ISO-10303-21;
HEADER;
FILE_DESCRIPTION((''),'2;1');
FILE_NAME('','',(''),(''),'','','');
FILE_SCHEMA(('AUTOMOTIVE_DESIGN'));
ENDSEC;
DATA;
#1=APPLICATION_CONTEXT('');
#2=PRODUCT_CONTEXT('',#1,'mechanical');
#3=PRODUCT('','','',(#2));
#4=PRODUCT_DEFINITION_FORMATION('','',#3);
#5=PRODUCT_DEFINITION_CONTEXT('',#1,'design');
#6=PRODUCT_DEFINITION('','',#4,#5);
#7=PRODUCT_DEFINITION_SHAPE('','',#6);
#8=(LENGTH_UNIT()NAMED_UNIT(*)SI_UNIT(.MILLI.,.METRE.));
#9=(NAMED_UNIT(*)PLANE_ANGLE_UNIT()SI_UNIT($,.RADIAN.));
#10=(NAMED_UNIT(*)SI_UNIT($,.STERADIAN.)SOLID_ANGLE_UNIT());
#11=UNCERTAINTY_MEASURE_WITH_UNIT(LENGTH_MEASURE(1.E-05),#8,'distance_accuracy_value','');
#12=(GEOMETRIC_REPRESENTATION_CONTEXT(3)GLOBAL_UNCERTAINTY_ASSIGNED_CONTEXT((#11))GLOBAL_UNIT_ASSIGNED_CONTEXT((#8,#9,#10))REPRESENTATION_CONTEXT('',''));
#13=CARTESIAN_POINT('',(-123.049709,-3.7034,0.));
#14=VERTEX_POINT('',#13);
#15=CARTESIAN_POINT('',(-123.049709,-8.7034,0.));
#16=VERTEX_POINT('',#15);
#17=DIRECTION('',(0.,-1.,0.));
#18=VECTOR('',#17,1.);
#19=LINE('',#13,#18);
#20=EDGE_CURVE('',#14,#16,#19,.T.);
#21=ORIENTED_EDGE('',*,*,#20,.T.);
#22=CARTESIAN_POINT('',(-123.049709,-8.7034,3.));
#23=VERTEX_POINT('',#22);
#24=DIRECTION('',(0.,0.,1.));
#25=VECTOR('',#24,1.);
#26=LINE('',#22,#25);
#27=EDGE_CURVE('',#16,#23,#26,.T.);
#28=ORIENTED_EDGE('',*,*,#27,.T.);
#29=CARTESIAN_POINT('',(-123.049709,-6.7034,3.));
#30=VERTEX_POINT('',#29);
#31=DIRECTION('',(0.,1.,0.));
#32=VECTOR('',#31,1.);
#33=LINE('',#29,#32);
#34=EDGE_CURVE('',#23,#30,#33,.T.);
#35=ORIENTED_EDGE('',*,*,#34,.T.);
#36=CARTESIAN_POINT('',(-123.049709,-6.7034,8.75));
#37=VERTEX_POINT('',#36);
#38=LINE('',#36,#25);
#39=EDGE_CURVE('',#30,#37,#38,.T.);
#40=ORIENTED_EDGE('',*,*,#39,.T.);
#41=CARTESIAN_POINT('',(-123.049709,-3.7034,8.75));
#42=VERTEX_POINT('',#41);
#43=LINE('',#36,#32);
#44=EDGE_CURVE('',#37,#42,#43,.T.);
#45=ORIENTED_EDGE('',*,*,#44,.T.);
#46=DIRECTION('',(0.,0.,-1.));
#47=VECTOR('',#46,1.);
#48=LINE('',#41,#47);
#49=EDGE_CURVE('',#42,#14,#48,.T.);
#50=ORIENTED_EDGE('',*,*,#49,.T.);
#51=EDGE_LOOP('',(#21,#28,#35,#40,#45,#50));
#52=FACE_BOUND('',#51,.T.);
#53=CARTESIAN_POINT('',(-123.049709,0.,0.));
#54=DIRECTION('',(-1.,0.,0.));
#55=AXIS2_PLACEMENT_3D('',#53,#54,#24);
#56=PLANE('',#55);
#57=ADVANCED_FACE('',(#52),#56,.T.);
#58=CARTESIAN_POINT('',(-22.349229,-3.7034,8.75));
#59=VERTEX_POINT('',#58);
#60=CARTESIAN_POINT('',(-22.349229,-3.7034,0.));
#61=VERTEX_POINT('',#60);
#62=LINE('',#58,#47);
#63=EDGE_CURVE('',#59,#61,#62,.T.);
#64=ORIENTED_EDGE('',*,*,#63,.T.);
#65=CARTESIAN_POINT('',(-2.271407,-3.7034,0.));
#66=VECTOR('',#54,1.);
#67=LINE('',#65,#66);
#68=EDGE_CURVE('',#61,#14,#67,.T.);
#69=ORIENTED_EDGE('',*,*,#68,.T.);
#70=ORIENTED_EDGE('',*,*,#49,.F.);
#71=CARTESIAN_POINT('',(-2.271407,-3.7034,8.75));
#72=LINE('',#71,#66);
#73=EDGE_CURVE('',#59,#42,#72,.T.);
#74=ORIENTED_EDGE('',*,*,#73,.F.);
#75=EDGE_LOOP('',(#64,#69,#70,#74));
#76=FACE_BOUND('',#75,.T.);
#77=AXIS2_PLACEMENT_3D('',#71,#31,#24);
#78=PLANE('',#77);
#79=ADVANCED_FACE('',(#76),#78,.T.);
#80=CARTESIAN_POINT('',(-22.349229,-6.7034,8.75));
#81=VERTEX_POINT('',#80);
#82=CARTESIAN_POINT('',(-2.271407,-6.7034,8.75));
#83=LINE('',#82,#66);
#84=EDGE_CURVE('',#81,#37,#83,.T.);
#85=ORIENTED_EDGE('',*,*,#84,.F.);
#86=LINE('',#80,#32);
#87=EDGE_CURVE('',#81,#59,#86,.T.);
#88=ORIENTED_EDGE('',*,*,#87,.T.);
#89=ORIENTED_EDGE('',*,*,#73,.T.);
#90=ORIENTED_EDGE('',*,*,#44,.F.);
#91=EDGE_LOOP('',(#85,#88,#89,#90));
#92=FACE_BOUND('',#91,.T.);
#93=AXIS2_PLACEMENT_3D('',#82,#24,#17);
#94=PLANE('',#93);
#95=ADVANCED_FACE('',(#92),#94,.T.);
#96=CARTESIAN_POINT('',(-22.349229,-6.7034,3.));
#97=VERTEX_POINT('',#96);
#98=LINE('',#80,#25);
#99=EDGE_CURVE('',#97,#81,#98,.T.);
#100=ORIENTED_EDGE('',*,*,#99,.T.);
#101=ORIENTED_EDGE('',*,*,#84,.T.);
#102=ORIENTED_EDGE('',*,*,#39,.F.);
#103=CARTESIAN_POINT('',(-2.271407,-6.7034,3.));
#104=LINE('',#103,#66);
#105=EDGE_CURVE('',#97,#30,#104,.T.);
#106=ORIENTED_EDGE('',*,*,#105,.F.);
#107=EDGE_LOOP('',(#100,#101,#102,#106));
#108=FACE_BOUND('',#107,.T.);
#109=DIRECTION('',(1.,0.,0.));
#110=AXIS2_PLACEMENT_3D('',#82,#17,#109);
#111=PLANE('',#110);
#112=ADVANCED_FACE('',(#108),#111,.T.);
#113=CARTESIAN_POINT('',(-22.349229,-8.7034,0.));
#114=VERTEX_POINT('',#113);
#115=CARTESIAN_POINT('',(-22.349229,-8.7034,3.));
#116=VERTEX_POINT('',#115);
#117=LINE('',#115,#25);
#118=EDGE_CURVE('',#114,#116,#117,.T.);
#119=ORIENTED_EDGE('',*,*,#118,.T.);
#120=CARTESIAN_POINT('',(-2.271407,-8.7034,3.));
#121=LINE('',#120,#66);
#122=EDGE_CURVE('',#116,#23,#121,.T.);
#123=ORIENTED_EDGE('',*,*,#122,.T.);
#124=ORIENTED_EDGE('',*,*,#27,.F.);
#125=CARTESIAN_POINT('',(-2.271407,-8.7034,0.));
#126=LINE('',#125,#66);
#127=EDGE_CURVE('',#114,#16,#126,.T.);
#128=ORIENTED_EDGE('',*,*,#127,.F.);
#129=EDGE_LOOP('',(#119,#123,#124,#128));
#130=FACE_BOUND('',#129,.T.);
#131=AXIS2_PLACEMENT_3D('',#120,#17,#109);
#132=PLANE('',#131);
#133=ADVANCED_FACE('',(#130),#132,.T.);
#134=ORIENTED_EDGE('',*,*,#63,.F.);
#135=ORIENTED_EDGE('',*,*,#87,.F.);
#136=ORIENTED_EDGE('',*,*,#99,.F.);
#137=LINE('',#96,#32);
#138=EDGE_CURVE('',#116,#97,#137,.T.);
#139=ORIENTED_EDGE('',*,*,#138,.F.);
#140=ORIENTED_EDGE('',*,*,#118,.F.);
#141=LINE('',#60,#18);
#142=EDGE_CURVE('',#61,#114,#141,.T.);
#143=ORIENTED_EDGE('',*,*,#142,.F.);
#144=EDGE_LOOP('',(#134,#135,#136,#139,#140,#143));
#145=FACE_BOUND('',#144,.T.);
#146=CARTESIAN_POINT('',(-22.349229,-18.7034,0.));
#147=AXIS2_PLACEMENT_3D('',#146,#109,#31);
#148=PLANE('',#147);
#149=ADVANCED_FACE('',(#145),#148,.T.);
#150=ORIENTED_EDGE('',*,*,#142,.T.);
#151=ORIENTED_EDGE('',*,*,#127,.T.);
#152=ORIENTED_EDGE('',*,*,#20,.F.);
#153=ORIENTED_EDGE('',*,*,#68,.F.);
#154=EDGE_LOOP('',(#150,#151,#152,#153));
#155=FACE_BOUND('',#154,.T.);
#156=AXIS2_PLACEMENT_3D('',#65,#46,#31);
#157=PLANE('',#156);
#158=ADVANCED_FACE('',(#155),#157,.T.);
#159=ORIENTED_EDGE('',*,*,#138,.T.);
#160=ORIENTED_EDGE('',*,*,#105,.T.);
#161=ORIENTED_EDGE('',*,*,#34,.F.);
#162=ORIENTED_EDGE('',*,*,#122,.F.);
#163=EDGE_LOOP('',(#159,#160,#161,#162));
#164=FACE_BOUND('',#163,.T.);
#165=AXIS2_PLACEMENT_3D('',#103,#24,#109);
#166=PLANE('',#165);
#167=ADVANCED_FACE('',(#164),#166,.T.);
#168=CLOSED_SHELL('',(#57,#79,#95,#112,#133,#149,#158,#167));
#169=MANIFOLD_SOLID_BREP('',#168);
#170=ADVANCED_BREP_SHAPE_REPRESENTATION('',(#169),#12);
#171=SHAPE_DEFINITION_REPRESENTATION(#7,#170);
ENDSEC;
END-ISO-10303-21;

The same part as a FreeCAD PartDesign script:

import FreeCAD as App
import Part
import Sketcher
from FreeCAD import Vector
Q = App.Units.Quantity

doc = App.newDocument("Part")
body = doc.addObject("PartDesign::Body", "Body")

# Sketch on YZ plane
sketch1 = body.newObject("Sketcher::SketchObject", "Sketch")
sketch1.AttachmentSupport = (doc.getObject("YZ_Plane"), [""])
sketch1.MapMode = "FlatFace"
sketch1.AttachmentOffset = App.Placement(Vector(0, 0, -123.049709), App.Rotation())
sketch1.addGeometry([
    Part.LineSegment(Vector(-3.7, 0, 0), Vector(-8.7, 0, 0)),  # 0
    Part.LineSegment(Vector(-8.7, 0, 0), Vector(-8.7, 3, 0)),  # 1
    Part.LineSegment(Vector(-8.7, 3, 0), Vector(-6.7, 3, 0)),  # 2
    Part.LineSegment(Vector(-6.7, 3, 0), Vector(-6.7, 8.8, 0)),  # 3
    Part.LineSegment(Vector(-6.7, 8.8, 0), Vector(-3.7, 8.8, 0)),  # 4
    Part.LineSegment(Vector(-3.7, 8.8, 0), Vector(-3.7, 0, 0)),  # 5
], False)
sketch1.addConstraint([
    Sketcher.Constraint("Coincident", 0, 2, 1, 1),
    Sketcher.Constraint("Coincident", 1, 2, 2, 1),
    Sketcher.Constraint("Coincident", 2, 2, 3, 1),
    Sketcher.Constraint("Coincident", 3, 2, 4, 1),
    Sketcher.Constraint("Coincident", 4, 2, 5, 1),
    Sketcher.Constraint("Coincident", 5, 2, 0, 1),
    Sketcher.Constraint("Horizontal", 0),
    Sketcher.Constraint("Vertical", 1),
    Sketcher.Constraint("Horizontal", 2),
    Sketcher.Constraint("Vertical", 3),
    Sketcher.Constraint("Horizontal", 4),
    Sketcher.Constraint("Vertical", 5),
    Sketcher.Constraint("PointOnObject", 0, 2, -1),
    Sketcher.Constraint("Equal", 4, 1),
    Sketcher.Constraint("DistanceX", 0, 2, 0, 1, Q("5 mm")),
    Sketcher.Constraint("DistanceX", 2, 1, 2, 2, Q("2 mm")),
    Sketcher.Constraint("DistanceY", 3, 1, 3, 2, Q("5.75 mm")),
    Sketcher.Constraint("DistanceX", 0, 2, -1, 1, Q("8.7034 mm")),
])
pad1 = body.newObject("PartDesign::Pad", "Pad")
pad1.Profile = sketch1
pad1.Length = 100.70048

doc.recompute()
